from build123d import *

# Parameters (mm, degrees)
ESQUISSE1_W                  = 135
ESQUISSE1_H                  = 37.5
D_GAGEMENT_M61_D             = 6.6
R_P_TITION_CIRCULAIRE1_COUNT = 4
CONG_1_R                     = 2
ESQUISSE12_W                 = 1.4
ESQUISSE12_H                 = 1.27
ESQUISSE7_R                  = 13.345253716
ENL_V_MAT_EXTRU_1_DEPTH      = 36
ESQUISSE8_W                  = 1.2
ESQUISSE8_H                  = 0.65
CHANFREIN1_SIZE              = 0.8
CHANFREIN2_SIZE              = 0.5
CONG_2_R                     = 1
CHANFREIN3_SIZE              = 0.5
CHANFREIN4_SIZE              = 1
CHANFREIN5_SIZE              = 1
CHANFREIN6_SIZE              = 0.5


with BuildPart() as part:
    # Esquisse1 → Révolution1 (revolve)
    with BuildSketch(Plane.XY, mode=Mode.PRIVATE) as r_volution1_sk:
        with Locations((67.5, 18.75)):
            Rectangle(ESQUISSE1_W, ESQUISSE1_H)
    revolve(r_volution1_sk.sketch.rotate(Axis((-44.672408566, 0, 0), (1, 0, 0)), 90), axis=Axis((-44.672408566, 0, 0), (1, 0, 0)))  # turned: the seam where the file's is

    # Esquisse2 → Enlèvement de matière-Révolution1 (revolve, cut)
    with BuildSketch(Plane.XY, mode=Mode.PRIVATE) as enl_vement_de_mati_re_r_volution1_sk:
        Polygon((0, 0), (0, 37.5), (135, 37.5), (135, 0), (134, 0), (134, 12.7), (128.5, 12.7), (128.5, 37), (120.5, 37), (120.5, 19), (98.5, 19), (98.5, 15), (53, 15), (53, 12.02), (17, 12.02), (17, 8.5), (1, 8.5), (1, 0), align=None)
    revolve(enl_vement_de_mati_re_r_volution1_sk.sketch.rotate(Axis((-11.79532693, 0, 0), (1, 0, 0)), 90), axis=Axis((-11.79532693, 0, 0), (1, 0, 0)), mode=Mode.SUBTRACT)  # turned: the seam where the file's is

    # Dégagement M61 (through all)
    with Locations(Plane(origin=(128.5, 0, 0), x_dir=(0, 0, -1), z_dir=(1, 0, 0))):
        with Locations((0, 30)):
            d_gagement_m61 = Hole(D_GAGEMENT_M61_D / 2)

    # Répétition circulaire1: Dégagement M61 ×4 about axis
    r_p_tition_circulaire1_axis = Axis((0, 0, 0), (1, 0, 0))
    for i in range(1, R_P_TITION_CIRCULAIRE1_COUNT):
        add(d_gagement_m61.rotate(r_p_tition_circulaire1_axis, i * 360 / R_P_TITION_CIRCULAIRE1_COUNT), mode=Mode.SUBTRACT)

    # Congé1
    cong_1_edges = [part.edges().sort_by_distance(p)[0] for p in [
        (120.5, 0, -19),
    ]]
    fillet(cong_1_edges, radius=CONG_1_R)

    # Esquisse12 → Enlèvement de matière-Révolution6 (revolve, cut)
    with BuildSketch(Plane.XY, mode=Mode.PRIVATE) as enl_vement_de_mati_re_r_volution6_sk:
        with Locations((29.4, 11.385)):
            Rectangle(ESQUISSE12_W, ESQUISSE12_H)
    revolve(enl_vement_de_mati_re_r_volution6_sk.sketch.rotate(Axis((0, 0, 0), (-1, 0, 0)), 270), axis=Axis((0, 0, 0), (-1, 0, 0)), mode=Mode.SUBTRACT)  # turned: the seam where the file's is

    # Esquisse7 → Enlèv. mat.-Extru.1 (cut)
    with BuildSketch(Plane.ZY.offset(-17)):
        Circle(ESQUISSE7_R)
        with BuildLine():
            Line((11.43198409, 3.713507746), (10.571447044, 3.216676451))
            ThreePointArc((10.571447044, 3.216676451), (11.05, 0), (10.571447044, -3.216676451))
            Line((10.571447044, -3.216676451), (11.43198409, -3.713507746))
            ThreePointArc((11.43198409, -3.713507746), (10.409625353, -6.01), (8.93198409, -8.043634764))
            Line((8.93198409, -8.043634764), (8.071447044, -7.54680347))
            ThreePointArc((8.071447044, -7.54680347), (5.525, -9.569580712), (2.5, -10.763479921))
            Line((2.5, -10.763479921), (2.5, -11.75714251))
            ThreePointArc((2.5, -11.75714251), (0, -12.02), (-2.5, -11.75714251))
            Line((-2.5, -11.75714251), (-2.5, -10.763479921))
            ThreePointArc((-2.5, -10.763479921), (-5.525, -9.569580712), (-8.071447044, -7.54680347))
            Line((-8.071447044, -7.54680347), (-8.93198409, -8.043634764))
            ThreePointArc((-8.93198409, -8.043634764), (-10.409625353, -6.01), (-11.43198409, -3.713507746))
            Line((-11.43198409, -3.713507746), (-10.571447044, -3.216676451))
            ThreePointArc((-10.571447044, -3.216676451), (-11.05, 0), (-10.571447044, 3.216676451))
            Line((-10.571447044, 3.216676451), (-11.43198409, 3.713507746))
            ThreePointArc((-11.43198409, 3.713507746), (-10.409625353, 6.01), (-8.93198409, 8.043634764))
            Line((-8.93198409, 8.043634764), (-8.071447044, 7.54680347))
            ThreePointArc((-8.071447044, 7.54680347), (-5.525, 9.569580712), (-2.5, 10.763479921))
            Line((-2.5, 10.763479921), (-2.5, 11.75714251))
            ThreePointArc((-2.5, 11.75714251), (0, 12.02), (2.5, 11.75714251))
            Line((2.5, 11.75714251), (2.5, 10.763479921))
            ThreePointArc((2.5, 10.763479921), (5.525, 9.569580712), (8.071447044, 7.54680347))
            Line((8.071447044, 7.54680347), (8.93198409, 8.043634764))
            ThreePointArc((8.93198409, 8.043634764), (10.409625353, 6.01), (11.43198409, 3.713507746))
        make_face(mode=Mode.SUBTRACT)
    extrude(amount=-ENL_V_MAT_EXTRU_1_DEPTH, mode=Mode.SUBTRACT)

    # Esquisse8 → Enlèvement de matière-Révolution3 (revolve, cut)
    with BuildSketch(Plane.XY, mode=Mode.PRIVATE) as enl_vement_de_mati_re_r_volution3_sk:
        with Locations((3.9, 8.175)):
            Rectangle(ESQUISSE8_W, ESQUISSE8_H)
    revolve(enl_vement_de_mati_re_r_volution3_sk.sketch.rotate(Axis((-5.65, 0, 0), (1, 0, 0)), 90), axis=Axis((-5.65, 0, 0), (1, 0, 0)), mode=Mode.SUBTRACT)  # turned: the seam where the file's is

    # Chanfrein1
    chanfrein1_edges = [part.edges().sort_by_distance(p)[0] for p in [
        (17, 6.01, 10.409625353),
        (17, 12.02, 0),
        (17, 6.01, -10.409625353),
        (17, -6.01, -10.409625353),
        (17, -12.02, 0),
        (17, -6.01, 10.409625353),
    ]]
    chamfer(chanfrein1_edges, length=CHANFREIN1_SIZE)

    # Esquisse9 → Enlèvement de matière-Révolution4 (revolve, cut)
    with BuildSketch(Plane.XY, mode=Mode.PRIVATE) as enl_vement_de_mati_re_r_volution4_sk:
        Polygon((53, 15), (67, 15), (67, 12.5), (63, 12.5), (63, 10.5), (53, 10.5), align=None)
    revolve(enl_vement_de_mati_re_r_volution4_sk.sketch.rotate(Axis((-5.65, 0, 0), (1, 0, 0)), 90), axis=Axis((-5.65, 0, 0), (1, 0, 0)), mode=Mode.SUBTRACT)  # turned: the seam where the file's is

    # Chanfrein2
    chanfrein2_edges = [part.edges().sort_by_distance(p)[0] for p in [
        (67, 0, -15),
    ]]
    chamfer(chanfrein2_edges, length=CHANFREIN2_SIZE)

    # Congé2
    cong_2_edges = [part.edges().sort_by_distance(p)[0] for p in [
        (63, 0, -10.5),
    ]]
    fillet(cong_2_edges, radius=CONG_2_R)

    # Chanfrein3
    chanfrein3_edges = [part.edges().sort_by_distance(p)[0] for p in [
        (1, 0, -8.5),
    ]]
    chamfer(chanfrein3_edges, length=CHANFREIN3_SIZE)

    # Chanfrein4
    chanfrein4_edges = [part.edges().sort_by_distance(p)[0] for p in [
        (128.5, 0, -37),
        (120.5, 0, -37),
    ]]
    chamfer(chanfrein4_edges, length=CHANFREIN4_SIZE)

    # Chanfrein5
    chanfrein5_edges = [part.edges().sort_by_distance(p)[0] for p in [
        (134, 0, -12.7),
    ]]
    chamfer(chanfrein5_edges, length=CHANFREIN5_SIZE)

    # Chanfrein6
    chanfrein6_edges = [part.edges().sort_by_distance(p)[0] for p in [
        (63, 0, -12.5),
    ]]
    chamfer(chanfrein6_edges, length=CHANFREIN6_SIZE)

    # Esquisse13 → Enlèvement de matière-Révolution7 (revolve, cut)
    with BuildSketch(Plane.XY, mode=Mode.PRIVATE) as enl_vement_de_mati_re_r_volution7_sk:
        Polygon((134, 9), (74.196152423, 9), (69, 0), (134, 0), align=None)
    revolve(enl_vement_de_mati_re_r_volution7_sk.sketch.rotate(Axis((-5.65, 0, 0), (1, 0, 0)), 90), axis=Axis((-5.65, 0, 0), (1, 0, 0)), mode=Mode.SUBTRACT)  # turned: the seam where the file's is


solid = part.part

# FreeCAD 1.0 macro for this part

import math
import FreeCAD as App
import Part
import Sketcher

V = App.Vector
Q = App.Units.Quantity


def edges_at(feature, points):
    """Names of the edges that pass closest to the given points."""
    edges = feature.Shape.Edges
    near = lambda p: min(range(len(edges)), key=lambda i: edges[i].distToShape(Part.Vertex(*p))[0])
    return sorted({f"Edge{near(p) + 1}" for p in points})


def add_polygon(sketch, points):
    """Adds a closed chain of lines whose ends are joined by coincident constraints."""
    first, n = sketch.GeometryCount, len(points)
    for a, b in zip(points, points[1:] + points[:1]):
        sketch.addGeometry(Part.LineSegment(App.Vector(*a, 0), App.Vector(*b, 0)), False)
    for i in range(n):
        sketch.addConstraint(Sketcher.Constraint("Coincident", first + i, 2, first + (i + 1) % n, 1))

doc = App.newDocument("Part")
body = doc.addObject("PartDesign::Body", "Body")

sketch1 = doc.addObject("Sketcher::SketchObject", "Sketch")
body.addObject(sketch1)
sketch1.AttachmentSupport = (doc.XY_Plane, [""])
sketch1.MapMode = "FlatFace"
add_polygon(sketch1, [(0, 38), (0, 0), (135, 0), (135, 38)])
sketch1.addConstraint([
    Sketcher.Constraint("Vertical", 0),
    Sketcher.Constraint("Horizontal", 1),
    Sketcher.Constraint("Vertical", 2),
    Sketcher.Constraint("Horizontal", 3),
    Sketcher.Constraint("Coincident", 0, 2, -1, 1),
    Sketcher.Constraint("DistanceX", 1, 1, 1, 2, Q("135 mm")),
    Sketcher.Constraint("DistanceY", 0, 2, 0, 1, Q("37.5 mm")),
])
revolution = doc.addObject("PartDesign::Revolution", "Revolution")
body.addObject(revolution)
revolution.Profile = sketch1
revolution.ReferenceAxis = (sketch1, ["H_Axis"])
revolution.Angle = 360

sketch2 = doc.addObject("Sketcher::SketchObject", "Sketch001")
body.addObject(sketch2)
sketch2.AttachmentSupport = (doc.XY_Plane, [""])
sketch2.MapMode = "FlatFace"
add_polygon(sketch2, [(0, 37.5), (0, 0), (1, 0), (1, 8.5), (17, 8.5), (17, 12), (53, 12), (53, 15), (98.5, 15), (98.5, 19), (120.5, 19), (120.5, 37), (128.5, 37), (128.5, 12.7), (134, 12.7), (134, 0), (135, 0), (135, 37.5)])
sketch2.addConstraint([
    Sketcher.Constraint("Vertical", 0),
    Sketcher.Constraint("Horizontal", 1),
    Sketcher.Constraint("Vertical", 2),
    Sketcher.Constraint("Horizontal", 3),
    Sketcher.Constraint("Vertical", 4),
    Sketcher.Constraint("Horizontal", 5),
    Sketcher.Constraint("Vertical", 6),
    Sketcher.Constraint("Horizontal", 7),
    Sketcher.Constraint("Vertical", 8),
    Sketcher.Constraint("Horizontal", 9),
    Sketcher.Constraint("Vertical", 10),
    Sketcher.Constraint("Horizontal", 11),
    Sketcher.Constraint("Vertical", 12),
    Sketcher.Constraint("Horizontal", 13),
    Sketcher.Constraint("Vertical", 14),
    Sketcher.Constraint("Horizontal", 15),
    Sketcher.Constraint("Vertical", 16),
    Sketcher.Constraint("Horizontal", 17),
    Sketcher.Constraint("Coincident", 0, 2, -1, 1),
    Sketcher.Constraint("PointOnObject", 14, 2, -1),
    Sketcher.Constraint("Equal", 1, 15),
    Sketcher.Constraint("DistanceX", 1, 1, 1, 2, Q("1 mm")),
    Sketcher.Constraint("DistanceX", 3, 1, 3, 2, Q("16 mm")),
    Sketcher.Constraint("DistanceX", 5, 1, 5, 2, Q("36 mm")),
    Sketcher.Constraint("DistanceX", 9, 1, 9, 2, Q("22 mm")),
    Sketcher.Constraint("DistanceX", 11, 1, 11, 2, Q("8 mm")),
    Sketcher.Constraint("DistanceX", 17, 2, 17, 1, Q("135 mm")),
    Sketcher.Constraint("DistanceY", 8, 1, 8, 2, Q("4 mm")),
    Sketcher.Constraint("DistanceY", 10, 1, 10, 2, Q("18 mm")),
    Sketcher.Constraint("DistanceX", 7, 1, 7, 2, Q("45.5 mm")),
    Sketcher.Constraint("DistanceY", 0, 2, 0, 1, Q("37.5 mm")),
    Sketcher.Constraint("DistanceY", 2, 1, 2, 2, Q("8.5 mm")),
    Sketcher.Constraint("DistanceY", 12, 2, 12, 1, Q("24.3 mm")),
    Sketcher.Constraint("DistanceY", 14, 2, 14, 1, Q("12.7 mm")),
    Sketcher.Constraint("DistanceY", 4, 1, 4, 2, Q("3.52 mm")),
])
groove = doc.addObject("PartDesign::Groove", "Groove")
body.addObject(groove)
groove.Profile = sketch2
groove.ReferenceAxis = (sketch2, ["H_Axis"])
groove.Angle = 360

sketch3 = doc.addObject("Sketcher::SketchObject", "Sketch002")
body.addObject(sketch3)
sketch3.AttachmentSupport = (doc.YZ_Plane, [""])
sketch3.MapMode = "FlatFace"
sketch3.AttachmentOffset = App.Placement(V(0, 0, 128.5), App.Rotation())
sketch3.addGeometry(Part.Circle(V(30, 0, 0), V(0, 0, 1), 3.3), False)
sketch3.addConstraint([
    Sketcher.Constraint("PointOnObject", 0, 3, -1),
    Sketcher.Constraint("Diameter", 0, Q("6.6 mm")),
    Sketcher.Constraint("DistanceX", -1, 1, 0, 3, Q("30 mm")),
])
doc.recompute()
hole = doc.addObject("PartDesign::Hole", "Hole")
body.addObject(hole)
hole.Profile = sketch3
hole.ThreadType = "None"
hole.Diameter = 6.6
hole.DepthType = "ThroughAll"
doc.recompute()

polarpattern = doc.addObject("PartDesign::PolarPattern", "PolarPattern")
body.addObject(polarpattern)
polarpattern.Originals = [hole]
polarpattern.Axis = (doc.X_Axis, [""])
polarpattern.Angle = 360
polarpattern.Occurrences = 4
body.Tip = polarpattern
doc.recompute()

fillet = doc.addObject("PartDesign::Fillet", "Fillet")
body.addObject(fillet)
fillet.Base = (polarpattern, edges_at(polarpattern, [(120.5, 0, -19)]))
fillet.Radius = 2

sketch4 = doc.addObject("Sketcher::SketchObject", "Sketch003")
body.addObject(sketch4)
sketch4.AttachmentSupport = (doc.XY_Plane, [""])
sketch4.MapMode = "FlatFace"
add_polygon(sketch4, [(28.7, 12), (28.7, 10.8), (30.1, 10.8), (30.1, 12)])
sketch4.addConstraint([
    Sketcher.Constraint("Vertical", 0),
    Sketcher.Constraint("Horizontal", 1),
    Sketcher.Constraint("Vertical", 2),
    Sketcher.Constraint("Horizontal", 3),
    Sketcher.Constraint("DistanceX", 1, 1, 1, 2, Q("1.4 mm")),
    Sketcher.Constraint("DistanceY", 0, 2, 0, 1, Q("1.27 mm")),
    Sketcher.Constraint("DistanceX", -1, 1, 0, 2, Q("28.7 mm")),
    Sketcher.Constraint("DistanceY", -1, 1, 0, 2, Q("10.75 mm")),
])
groove2 = doc.addObject("PartDesign::Groove", "Groove001")
body.addObject(groove2)
groove2.Profile = sketch4
groove2.ReferenceAxis = (sketch4, ["H_Axis"])
groove2.Angle = 360

sketch5 = doc.addObject("Sketcher::SketchObject", "Sketch004")
body.addObject(sketch5)
sketch5.AttachmentSupport = (doc.YZ_Plane, [""])
sketch5.MapMode = "FlatFace"
sketch5.AttachmentOffset = App.Placement(V(0, 0, 17), App.Rotation())
sketch5.addGeometry([
    Part.Circle(V(0, 0, 0), V(0, 0, 1), 13.3),
    Part.ArcOfCircle(Part.Circle(V(0, 0, 0), V(0, 0, 1), 12), math.radians(48), math.radians(72)),
    Part.LineSegment(V(3.7, 11.4, 0), V(3.2, 10.6, 0)),
    Part.ArcOfCircle(Part.Circle(V(0, 0, 0), V(0, 0, 1), 11), math.radians(73), math.radians(107)),
    Part.LineSegment(V(-3.2, 10.6, 0), V(-3.7, 11.4, 0)),
    Part.ArcOfCircle(Part.Circle(V(0, 0, 0), V(0, 0, 1), 12), math.radians(108), math.radians(132)),
    Part.LineSegment(V(-8, 8.9, 0), V(-7.5, 8.1, 0)),
    Part.ArcOfCircle(Part.Circle(V(0, 0, 0), V(0, 0, 1), 11.1), math.radians(133), math.radians(167)),
    Part.LineSegment(V(-10.8, 2.5, 0), V(-11.8, 2.5, 0)),
    Part.ArcOfCircle(Part.Circle(V(0, 0, 0), V(0, 0, 1), 12), math.radians(168), math.radians(192)),
    Part.LineSegment(V(-11.8, -2.5, 0), V(-10.8, -2.5, 0)),
    Part.ArcOfCircle(Part.Circle(V(0, 0, 0), V(0, 0, 1), 11.1), math.radians(-167), math.radians(-133)),
    Part.LineSegment(V(-7.5, -8.1, 0), V(-8, -8.9, 0)),
    Part.ArcOfCircle(Part.Circle(V(0, 0, 0), V(0, 0, 1), 12), math.radians(-132), math.radians(-108)),
    Part.LineSegment(V(-3.7, -11.4, 0), V(-3.2, -10.6, 0)),
    Part.ArcOfCircle(Part.Circle(V(0, 0, 0), V(0, 0, 1), 11), math.radians(-107), math.radians(-73)),
    Part.LineSegment(V(3.2, -10.6, 0), V(3.7, -11.4, 0)),
    Part.ArcOfCircle(Part.Circle(V(0, 0, 0), V(0, 0, 1), 12), math.radians(-72), math.radians(-48)),
    Part.LineSegment(V(8, -8.9, 0), V(7.5, -8.1, 0)),
    Part.ArcOfCircle(Part.Circle(V(0, 0, 0), V(0, 0, 1), 11.1), math.radians(-47), math.radians(-13)),
    Part.LineSegment(V(10.8, -2.5, 0), V(11.8, -2.5, 0)),
    Part.ArcOfCircle(Part.Circle(V(0, 0, 0), V(0, 0, 1), 12), math.radians(-12), math.radians(12)),
    Part.LineSegment(V(11.8, 2.5, 0), V(10.8, 2.5, 0)),
    Part.ArcOfCircle(Part.Circle(V(0, 0, 0), V(0, 0, 1), 11.1), math.radians(13), math.radians(47)),
    Part.LineSegment(V(7.5, 8.1, 0), V(8, 8.9, 0)),
], False)
sketch5.addConstraint([
    Sketcher.Constraint("Coincident", 1, 2, 2, 1),
    Sketcher.Constraint("Coincident", 2, 2, 3, 1),
    Sketcher.Constraint("Coincident", 3, 2, 4, 1),
    Sketcher.Constraint("Coincident", 4, 2, 5, 1),
    Sketcher.Constraint("Coincident", 5, 2, 6, 1),
    Sketcher.Constraint("Coincident", 6, 2, 7, 1),
    Sketcher.Constraint("Coincident", 7, 2, 8, 1),
    Sketcher.Constraint("Coincident", 8, 2, 9, 1),
    Sketcher.Constraint("Coincident", 9, 2, 10, 1),
    Sketcher.Constraint("Coincident", 10, 2, 11, 1),
    Sketcher.Constraint("Coincident", 11, 2, 12, 1),
    Sketcher.Constraint("Coincident", 12, 2, 13, 1),
    Sketcher.Constraint("Coincident", 13, 2, 14, 1),
    Sketcher.Constraint("Coincident", 14, 2, 15, 1),
    Sketcher.Constraint("Coincident", 15, 2, 16, 1),
    Sketcher.Constraint("Coincident", 16, 2, 17, 1),
    Sketcher.Constraint("Coincident", 17, 2, 18, 1),
    Sketcher.Constraint("Coincident", 18, 2, 19, 1),
    Sketcher.Constraint("Coincident", 19, 2, 20, 1),
    Sketcher.Constraint("Coincident", 20, 2, 21, 1),
    Sketcher.Constraint("Coincident", 21, 2, 22, 1),
    Sketcher.Constraint("Coincident", 22, 2, 23, 1),
    Sketcher.Constraint("Coincident", 23, 2, 24, 1),
    Sketcher.Constraint("Coincident", 24, 2, 1, 1),
    Sketcher.Constraint("Horizontal", 8),
    Sketcher.Constraint("Horizontal", 10),
    Sketcher.Constraint("Horizontal", 20),
    Sketcher.Constraint("Horizontal", 22),
    Sketcher.Constraint("Coincident", 0, 3, -1, 1),
    Sketcher.Constraint("Coincident", 1, 3, -1, 1),
    Sketcher.Constraint("Coincident", 3, 3, -1, 1),
    Sketcher.Constraint("Coincident", 5, 3, -1, 1),
    Sketcher.Constraint("Coincident", 7, 3, -1, 1),
    Sketcher.Constraint("Coincident", 9, 3, -1, 1),
    Sketcher.Constraint("Coincident", 11, 3, -1, 1),
    Sketcher.Constraint("Coincident", 13, 3, -1, 1),
    Sketcher.Constraint("Coincident", 15, 3, -1, 1),
    Sketcher.Constraint("Coincident", 17, 3, -1, 1),
    Sketcher.Constraint("Coincident", 19, 3, -1, 1),
    Sketcher.Constraint("Coincident", 21, 3, -1, 1),
    Sketcher.Constraint("Coincident", 23, 3, -1, 1),
    Sketcher.Constraint("Equal", 1, 5),
    Sketcher.Constraint("Equal", 3, 7),
    Sketcher.Constraint("Equal", 5, 9),
    Sketcher.Constraint("Equal", 7, 11),
    Sketcher.Constraint("Equal", 9, 13),
    Sketcher.Constraint("Equal", 11, 15),
    Sketcher.Constraint("Equal", 13, 17),
    Sketcher.Constraint("Equal", 15, 19),
    Sketcher.Constraint("Equal", 17, 21),
    Sketcher.Constraint("Equal", 19, 23),
    Sketcher.Constraint("Parallel", 4, 6),
    Sketcher.Constraint("Parallel", 2, 12),
    Sketcher.Constraint("Parallel", 12, 14),
    Sketcher.Constraint("Parallel", 6, 16),
    Sketcher.Constraint("Parallel", 16, 18),
    Sketcher.Constraint("Parallel", 14, 24),
    Sketcher.Constraint("Horizontal", 2, 2, 3, 2),
    Sketcher.Constraint("Horizontal", 1, 2, 4, 2),
    Sketcher.Constraint("Horizontal", 14, 2, 15, 2),
    Sketcher.Constraint("Horizontal", 12, 2, 17, 2),
    Sketcher.Constraint("Horizontal", 10, 2, 19, 2),
    Sketcher.Constraint("Horizontal", 8, 2, 21, 2),
    Sketcher.Constraint("Horizontal", 6, 2, 23, 2),
    Sketcher.Constraint("Vertical", 8, 2, 9, 2),
    Sketcher.Constraint("Vertical", 6, 2, 11, 2),
    Sketcher.Constraint("Vertical", 4, 2, 13, 2),
    Sketcher.Constraint("Equal", 4, 6),
    Sketcher.Constraint("Angle", 2, Q("-120 deg")),
    Sketcher.Constraint("Radius", 1, Q("12.02 mm")),
    Sketcher.Constraint("Radius", 3, Q("11.05 mm")),
    Sketcher.Constraint("DistanceY", 9, 2, 8, 2, Q("5 mm")),
    Sketcher.Constraint("DistanceY", 5, 2, 4, 2, Q("2.5 mm")),
    Sketcher.Constraint("Diameter", 0, Q("26.690507 mm")),
])
pocket1 = doc.addObject("PartDesign::Pocket", "Pocket")
body.addObject(pocket1)
pocket1.Profile = sketch5
pocket1.Length = 36
pocket1.Reversed = True

sketch6 = doc.addObject("Sketcher::SketchObject", "Sketch005")
body.addObject(sketch6)
sketch6.AttachmentSupport = (doc.XY_Plane, [""])
sketch6.MapMode = "FlatFace"
add_polygon(sketch6, [(3.3, 8.5), (3.3, 7.8), (4.5, 7.8), (4.5, 8.5)])
sketch6.addConstraint([
    Sketcher.Constraint("Vertical", 0),
    Sketcher.Constraint("Horizontal", 1),
    Sketcher.Constraint("Vertical", 2),
    Sketcher.Constraint("Horizontal", 3),
    Sketcher.Constraint("DistanceX", 1, 1, 1, 2, Q("1.2 mm")),
    Sketcher.Constraint("DistanceY", 0, 2, 0, 1, Q("0.65 mm")),
    Sketcher.Constraint("DistanceX", -1, 1, 0, 2, Q("3.3 mm")),
    Sketcher.Constraint("DistanceY", -1, 1, 2, 2, Q("8.5 mm")),
])
groove3 = doc.addObject("PartDesign::Groove", "Groove002")
body.addObject(groove3)
groove3.Profile = sketch6
groove3.ReferenceAxis = (sketch6, ["H_Axis"])
groove3.Angle = 360
doc.recompute()

chamfer = doc.addObject("PartDesign::Chamfer", "Chamfer")
body.addObject(chamfer)
chamfer.Base = (groove3, edges_at(groove3, [
    (17, 6.01, 10.41),
    (17, 12.02, 0),
    (17, 6.01, -10.41),
    (17, -6.01, -10.41),
    (17, -12.02, 0),
    (17, -6.01, 10.41),
]))
chamfer.Size = 0.8

sketch7 = doc.addObject("Sketcher::SketchObject", "Sketch006")
body.addObject(sketch7)
sketch7.AttachmentSupport = (doc.XY_Plane, [""])
sketch7.MapMode = "FlatFace"
add_polygon(sketch7, [(67, 15), (53, 15), (53, 10.5), (63, 10.5), (63, 12.5), (67, 12.5)])
sketch7.addConstraint([
    Sketcher.Constraint("Horizontal", 0),
    Sketcher.Constraint("Vertical", 1),
    Sketcher.Constraint("Horizontal", 2),
    Sketcher.Constraint("Vertical", 3),
    Sketcher.Constraint("Horizontal", 4),
    Sketcher.Constraint("Vertical", 5),
    Sketcher.Constraint("DistanceX", 0, 2, 0, 1, Q("14 mm")),
    Sketcher.Constraint("DistanceX", 2, 1, 2, 2, Q("10 mm")),
    Sketcher.Constraint("DistanceY", 3, 1, 3, 2, Q("2 mm")),
    Sketcher.Constraint("DistanceY", 1, 2, 1, 1, Q("4.5 mm")),
    Sketcher.Constraint("DistanceX", -1, 1, 0, 2, Q("53 mm")),
    Sketcher.Constraint("DistanceY", -1, 1, 0, 2, Q("15 mm")),
])
groove4 = doc.addObject("PartDesign::Groove", "Groove003")
body.addObject(groove4)
groove4.Profile = sketch7
groove4.ReferenceAxis = (sketch7, ["H_Axis"])
groove4.Angle = 360
doc.recompute()

chamfer2 = doc.addObject("PartDesign::Chamfer", "Chamfer001")
body.addObject(chamfer2)
chamfer2.Base = (groove4, edges_at(groove4, [(67, 0, -15)]))
chamfer2.Size = 0.5
doc.recompute()

fillet2 = doc.addObject("PartDesign::Fillet", "Fillet001")
body.addObject(fillet2)
fillet2.Base = (chamfer2, edges_at(chamfer2, [(63, 0, -10.5)]))
fillet2.Radius = 1
doc.recompute()

chamfer3 = doc.addObject("PartDesign::Chamfer", "Chamfer002")
body.addObject(chamfer3)
chamfer3.Base = (fillet2, edges_at(fillet2, [(1, 0, -8.5)]))
chamfer3.Size = 0.5
doc.recompute()

chamfer4 = doc.addObject("PartDesign::Chamfer", "Chamfer003")
body.addObject(chamfer4)
chamfer4.Base = (chamfer3, edges_at(chamfer3, [(128.5, 0, -37), (120.5, 0, -37)]))
chamfer4.Size = 1
doc.recompute()

chamfer5 = doc.addObject("PartDesign::Chamfer", "Chamfer004")
body.addObject(chamfer5)
chamfer5.Base = (chamfer4, edges_at(chamfer4, [(134, 0, -12.7)]))
chamfer5.Size = 1
doc.recompute()

chamfer6 = doc.addObject("PartDesign::Chamfer", "Chamfer005")
body.addObject(chamfer6)
chamfer6.Base = (chamfer5, edges_at(chamfer5, [(63, 0, -12.5)]))
chamfer6.Size = 0.5

sketch8 = doc.addObject("Sketcher::SketchObject", "Sketch007")
body.addObject(sketch8)
sketch8.AttachmentSupport = (doc.XY_Plane, [""])
sketch8.MapMode = "FlatFace"
add_polygon(sketch8, [(134, 9), (74, 9), (69, 0), (134, 0)])
sketch8.addConstraint([
    Sketcher.Constraint("Horizontal", 0),
    Sketcher.Constraint("Horizontal", 2),
    Sketcher.Constraint("Vertical", 3),
    Sketcher.Constraint("PointOnObject", 1, 2, -1),
    Sketcher.Constraint("DistanceX", 2, 1, 2, 2, Q("65 mm")),
    Sketcher.Constraint("DistanceY", 3, 1, 3, 2, Q("9 mm")),
    Sketcher.Constraint("Angle", 1, Q("-120 deg")),
    Sketcher.Constraint("DistanceX", -1, 1, 1, 2, Q("69 mm")),
])
groove5 = doc.addObject("PartDesign::Groove", "Groove004")
body.addObject(groove5)
groove5.Profile = sketch8
groove5.ReferenceAxis = (sketch8, ["H_Axis"])
groove5.Angle = 360

doc.recompute()
